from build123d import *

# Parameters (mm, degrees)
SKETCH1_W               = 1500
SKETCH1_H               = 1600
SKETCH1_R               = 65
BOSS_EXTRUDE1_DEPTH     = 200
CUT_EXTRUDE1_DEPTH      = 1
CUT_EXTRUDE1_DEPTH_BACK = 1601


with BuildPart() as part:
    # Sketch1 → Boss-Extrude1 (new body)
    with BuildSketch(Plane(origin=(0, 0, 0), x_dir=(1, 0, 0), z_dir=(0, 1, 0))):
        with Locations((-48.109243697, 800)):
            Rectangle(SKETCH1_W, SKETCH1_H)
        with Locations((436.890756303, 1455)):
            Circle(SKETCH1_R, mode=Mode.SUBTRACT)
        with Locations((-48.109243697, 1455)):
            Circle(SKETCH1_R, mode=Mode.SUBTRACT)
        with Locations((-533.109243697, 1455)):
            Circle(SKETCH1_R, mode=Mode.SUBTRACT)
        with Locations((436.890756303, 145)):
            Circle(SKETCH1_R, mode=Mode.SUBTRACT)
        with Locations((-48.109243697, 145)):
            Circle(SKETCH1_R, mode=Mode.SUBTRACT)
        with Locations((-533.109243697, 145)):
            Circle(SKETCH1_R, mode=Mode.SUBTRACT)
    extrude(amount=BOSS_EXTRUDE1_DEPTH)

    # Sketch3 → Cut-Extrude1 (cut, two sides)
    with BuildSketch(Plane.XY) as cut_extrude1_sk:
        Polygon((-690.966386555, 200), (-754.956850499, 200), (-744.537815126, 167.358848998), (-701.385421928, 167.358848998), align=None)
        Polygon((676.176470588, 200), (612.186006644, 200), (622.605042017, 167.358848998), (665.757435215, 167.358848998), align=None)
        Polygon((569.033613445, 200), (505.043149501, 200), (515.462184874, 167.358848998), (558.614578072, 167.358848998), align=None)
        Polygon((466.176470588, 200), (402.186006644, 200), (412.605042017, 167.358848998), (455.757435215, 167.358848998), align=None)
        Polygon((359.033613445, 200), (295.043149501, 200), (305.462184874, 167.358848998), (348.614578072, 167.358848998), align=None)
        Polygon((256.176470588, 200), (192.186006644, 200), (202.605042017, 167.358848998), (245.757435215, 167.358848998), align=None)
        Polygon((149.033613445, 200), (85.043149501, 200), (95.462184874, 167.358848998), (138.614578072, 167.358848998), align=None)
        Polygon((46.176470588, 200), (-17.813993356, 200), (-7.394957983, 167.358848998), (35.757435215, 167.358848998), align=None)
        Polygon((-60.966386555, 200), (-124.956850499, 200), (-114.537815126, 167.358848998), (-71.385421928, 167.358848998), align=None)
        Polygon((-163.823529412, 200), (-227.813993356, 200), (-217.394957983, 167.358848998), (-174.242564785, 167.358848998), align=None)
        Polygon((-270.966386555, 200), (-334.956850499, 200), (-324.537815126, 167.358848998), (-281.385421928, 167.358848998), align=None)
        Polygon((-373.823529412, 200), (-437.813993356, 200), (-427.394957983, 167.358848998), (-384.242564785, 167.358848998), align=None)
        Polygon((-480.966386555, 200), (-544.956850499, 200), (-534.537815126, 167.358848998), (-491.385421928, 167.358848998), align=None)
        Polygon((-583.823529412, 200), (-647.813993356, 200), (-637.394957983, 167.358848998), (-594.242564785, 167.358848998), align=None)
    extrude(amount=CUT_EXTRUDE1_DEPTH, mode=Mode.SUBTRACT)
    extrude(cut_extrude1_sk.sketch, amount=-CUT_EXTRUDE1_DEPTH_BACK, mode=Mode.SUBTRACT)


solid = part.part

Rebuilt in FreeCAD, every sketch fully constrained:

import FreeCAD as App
import Part
import Sketcher
from FreeCAD import Vector
Q = App.Units.Quantity


def add_polygon(sketch, points):
    """Adds a closed chain of lines whose ends are joined by coincident constraints."""
    first, n = sketch.GeometryCount, len(points)
    for a, b in zip(points, points[1:] + points[:1]):
        sketch.addGeometry(Part.LineSegment(App.Vector(*a, 0), App.Vector(*b, 0)), False)
    for i in range(n):
        sketch.addConstraint(Sketcher.Constraint("Coincident", first + i, 2, first + (i + 1) % n, 1))

doc = App.newDocument("Part")
params = doc.addObject("Spreadsheet::Sheet", "Params")
for row, (alias, value) in enumerate([
    ("sketch1_diameter", "130 mm"),
    ("sketch1_width", "1500 mm"),
    ("sketch1_height", "1600 mm"),
    ("pad1_length", "200 mm"),
], start=1):
    params.set(f"A{row}", alias)
    params.set(f"B{row}", "=" + value)
    params.setAlias(f"B{row}", alias)

body = doc.addObject("PartDesign::Body", "Body")

# Sketch on XZ plane
sketch1 = body.newObject("Sketcher::SketchObject", "Sketch")
sketch1.AttachmentSupport = (doc.getObject("XZ_Plane"), [""])
sketch1.MapMode = "FlatFace"
add_polygon(sketch1, [(-798.109244, -1600), (-798.109244, 0), (701.890756, 0), (701.890756, -1600)])  # lines 0-3
sketch1.addGeometry(Part.Circle(Vector(-533.109244, -145, 0), Vector(0, 0, 1), 65), False)  # 4
sketch1.addGeometry(Part.Circle(Vector(-48.109244, -145, 0), Vector(0, 0, 1), 65), False)  # 5
sketch1.addGeometry(Part.Circle(Vector(436.890756, -145, 0), Vector(0, 0, 1), 65), False)  # 6
sketch1.addGeometry(Part.Circle(Vector(-533.109244, -1455, 0), Vector(0, 0, 1), 65), False)  # 7
sketch1.addGeometry(Part.Circle(Vector(-48.109244, -1455, 0), Vector(0, 0, 1), 65), False)  # 8
sketch1.addGeometry(Part.Circle(Vector(436.890756, -1455, 0), Vector(0, 0, 1), 65), False)  # 9
sketch1.addConstraint([
    Sketcher.Constraint("Vertical", 0),
    Sketcher.Constraint("Horizontal", 1),
    Sketcher.Constraint("Vertical", 2),
    Sketcher.Constraint("Horizontal", 3),
    Sketcher.Constraint("Equal", 4, 5),
    Sketcher.Constraint("Equal", 5, 6),
    Sketcher.Constraint("Equal", 6, 7),
    Sketcher.Constraint("Equal", 7, 8),
    Sketcher.Constraint("Equal", 8, 9),
    Sketcher.Constraint("PointOnObject", 0, 2, -1),
    Sketcher.Constraint("Horizontal", 4, 3, 5, 3),
    Sketcher.Constraint("Horizontal", 5, 3, 6, 3),
    Sketcher.Constraint("Horizontal", 7, 3, 8, 3),
    Sketcher.Constraint("Horizontal", 8, 3, 9, 3),
    Sketcher.Constraint("Vertical", 4, 3, 7, 3),
    Sketcher.Constraint("Vertical", 5, 3, 8, 3),
    Sketcher.Constraint("Vertical", 6, 3, 9, 3),
    Sketcher.Constraint("Diameter", 4, Q("130 mm")),
    Sketcher.Constraint("DistanceX", 1, 1, 1, 2, Q("1500 mm")),
    Sketcher.Constraint("DistanceY", 0, 1, 0, 2, Q("1600 mm")),
    Sketcher.Constraint("DistanceY", 4, 3, -1, 1, Q("145 mm")),
    Sketcher.Constraint("DistanceY", 7, 3, -1, 1, Q("1455 mm")),
    Sketcher.Constraint("DistanceX", 4, 3, 5, 3, Q("485 mm")),
    Sketcher.Constraint("DistanceX", 5, 3, 6, 3, Q("485 mm")),
    Sketcher.Constraint("DistanceX", 0, 2, 4, 3, Q("265 mm")),
    Sketcher.Constraint("DistanceX", 4, 3, -1, 1, Q("533.109244 mm")),
])
sketch1.setExpression("Constraints[21]", "Params.sketch1_diameter")
sketch1.setExpression("Constraints[22]", "Params.sketch1_width")
sketch1.setExpression("Constraints[23]", "Params.sketch1_height")
pad1 = body.newObject("PartDesign::Pad", "Pad")
pad1.Profile = sketch1
pad1.setExpression("Length", "Params.pad1_length")
pad1.Reversed = True

# Sketch on XY plane
sketch2 = body.newObject("Sketcher::SketchObject", "Sketch001")
sketch2.AttachmentSupport = (doc.getObject("XY_Plane"), [""])
sketch2.MapMode = "FlatFace"
add_polygon(sketch2, [(-690.966387, 200), (-754.95685, 200), (-744.537815, 167.358849), (-701.385422, 167.358849)])  # lines 0-3
add_polygon(sketch2, [(676.176471, 200), (612.186007, 200), (622.605042, 167.358849), (665.757435, 167.358849)])  # lines 4-7
add_polygon(sketch2, [(569.033613, 200), (505.04315, 200), (515.462185, 167.358849), (558.614578, 167.358849)])  # lines 8-11
add_polygon(sketch2, [(466.176471, 200), (402.186007, 200), (412.605042, 167.358849), (455.757435, 167.358849)])  # lines 12-15
add_polygon(sketch2, [(359.033613, 200), (295.04315, 200), (305.462185, 167.358849), (348.614578, 167.358849)])  # lines 16-19
add_polygon(sketch2, [(256.176471, 200), (192.186007, 200), (202.605042, 167.358849), (245.757435, 167.358849)])  # lines 20-23
add_polygon(sketch2, [(149.033613, 200), (85.04315, 200), (95.462185, 167.358849), (138.614578, 167.358849)])  # lines 24-27
add_polygon(sketch2, [(46.176471, 200), (-17.813993, 200), (-7.394958, 167.358849), (35.757435, 167.358849)])  # lines 28-31
add_polygon(sketch2, [(-60.966387, 200), (-124.95685, 200), (-114.537815, 167.358849), (-71.385422, 167.358849)])  # lines 32-35
add_polygon(sketch2, [(-163.823529, 200), (-227.813993, 200), (-217.394958, 167.358849), (-174.242565, 167.358849)])  # lines 36-39
add_polygon(sketch2, [(-270.966387, 200), (-334.95685, 200), (-324.537815, 167.358849), (-281.385422, 167.358849)])  # lines 40-43
add_polygon(sketch2, [(-373.823529, 200), (-437.813993, 200), (-427.394958, 167.358849), (-384.242565, 167.358849)])  # lines 44-47
add_polygon(sketch2, [(-480.966387, 200), (-544.95685, 200), (-534.537815, 167.358849), (-491.385422, 167.358849)])  # lines 48-51
add_polygon(sketch2, [(-583.823529, 200), (-647.813993, 200), (-637.394958, 167.358849), (-594.242565, 167.358849)])  # lines 52-55
sketch2.addConstraint([
    Sketcher.Constraint("Horizontal", 0),
    Sketcher.Constraint("Horizontal", 2),
    Sketcher.Constraint("Horizontal", 4),
    Sketcher.Constraint("Horizontal", 6),
    Sketcher.Constraint("Horizontal", 8),
    Sketcher.Constraint("Horizontal", 10),
    Sketcher.Constraint("Horizontal", 12),
    Sketcher.Constraint("Horizontal", 14),
    Sketcher.Constraint("Horizontal", 16),
    Sketcher.Constraint("Horizontal", 18),
    Sketcher.Constraint("Horizontal", 20),
    Sketcher.Constraint("Horizontal", 22),
    Sketcher.Constraint("Horizontal", 24),
    Sketcher.Constraint("Horizontal", 26),
    Sketcher.Constraint("Horizontal", 28),
    Sketcher.Constraint("Horizontal", 30),
    Sketcher.Constraint("Horizontal", 32),
    Sketcher.Constraint("Horizontal", 34),
    Sketcher.Constraint("Horizontal", 36),
    Sketcher.Constraint("Horizontal", 38),
    Sketcher.Constraint("Horizontal", 40),
    Sketcher.Constraint("Horizontal", 42),
    Sketcher.Constraint("Horizontal", 44),
    Sketcher.Constraint("Horizontal", 46),
    Sketcher.Constraint("Horizontal", 48),
    Sketcher.Constraint("Horizontal", 50),
    Sketcher.Constraint("Horizontal", 52),
    Sketcher.Constraint("Horizontal", 54),
    Sketcher.Constraint("Parallel", 1, 5),
    Sketcher.Constraint("Parallel", 3, 7),
    Sketcher.Constraint("Parallel", 5, 9),
    Sketcher.Constraint("Parallel", 7, 11),
    Sketcher.Constraint("Parallel", 9, 13),
    Sketcher.Constraint("Parallel", 11, 15),
    Sketcher.Constraint("Parallel", 13, 17),
    Sketcher.Constraint("Parallel", 15, 19),
    Sketcher.Constraint("Parallel", 17, 21),
    Sketcher.Constraint("Parallel", 19, 23),
    Sketcher.Constraint("Parallel", 21, 25),
    Sketcher.Constraint("Parallel", 23, 27),
    Sketcher.Constraint("Parallel", 25, 29),
    Sketcher.Constraint("Parallel", 27, 31),
    Sketcher.Constraint("Parallel", 29, 33),
    Sketcher.Constraint("Parallel", 31, 35),
    Sketcher.Constraint("Parallel", 33, 37),
    Sketcher.Constraint("Parallel", 35, 39),
    Sketcher.Constraint("Parallel", 37, 41),
    Sketcher.Constraint("Parallel", 39, 43),
    Sketcher.Constraint("Parallel", 41, 45),
    Sketcher.Constraint("Parallel", 43, 47),
    Sketcher.Constraint("Parallel", 45, 49),
    Sketcher.Constraint("Parallel", 47, 51),
    Sketcher.Constraint("Parallel", 49, 53),
    Sketcher.Constraint("Parallel", 51, 55),
    Sketcher.Constraint("Horizontal", 3, 2, 4, 2),
    Sketcher.Constraint("Horizontal", 2, 2, 5, 2),
    Sketcher.Constraint("Horizontal", 7, 2, 8, 2),
    Sketcher.Constraint("Horizontal", 6, 2, 9, 2),
    Sketcher.Constraint("Horizontal", 11, 2, 12, 2),
    Sketcher.Constraint("Horizontal", 10, 2, 13, 2),
    Sketcher.Constraint("Horizontal", 15, 2, 16, 2),
    Sketcher.Constraint("Horizontal", 14, 2, 17, 2),
    Sketcher.Constraint("Horizontal", 19, 2, 20, 2),
    Sketcher.Constraint("Horizontal", 18, 2, 21, 2),
    Sketcher.Constraint("Horizontal", 23, 2, 24, 2),
    Sketcher.Constraint("Horizontal", 22, 2, 25, 2),
    Sketcher.Constraint("Horizontal", 27, 2, 28, 2),
    Sketcher.Constraint("Horizontal", 26, 2, 29, 2),
    Sketcher.Constraint("Horizontal", 31, 2, 32, 2),
    Sketcher.Constraint("Horizontal", 30, 2, 33, 2),
    Sketcher.Constraint("Horizontal", 35, 2, 36, 2),
    Sketcher.Constraint("Horizontal", 34, 2, 37, 2),
    Sketcher.Constraint("Horizontal", 39, 2, 40, 2),
    Sketcher.Constraint("Horizontal", 38, 2, 41, 2),
    Sketcher.Constraint("Horizontal", 43, 2, 44, 2),
    Sketcher.Constraint("Horizontal", 42, 2, 45, 2),
    Sketcher.Constraint("Horizontal", 47, 2, 48, 2),
    Sketcher.Constraint("Horizontal", 46, 2, 49, 2),
    Sketcher.Constraint("Horizontal", 51, 2, 52, 2),
    Sketcher.Constraint("Horizontal", 50, 2, 53, 2),
    Sketcher.Constraint("Equal", 0, 4),
    Sketcher.Constraint("Equal", 4, 8),
    Sketcher.Constraint("Equal", 8, 12),
    Sketcher.Constraint("Equal", 12, 16),
    Sketcher.Constraint("Equal", 16, 20),
    Sketcher.Constraint("Equal", 20, 24),
    Sketcher.Constraint("Equal", 24, 28),
    Sketcher.Constraint("Equal", 28, 32),
    Sketcher.Constraint("Equal", 32, 36),
    Sketcher.Constraint("Equal", 36, 40),
    Sketcher.Constraint("Equal", 40, 44),
    Sketcher.Constraint("Equal", 44, 48),
    Sketcher.Constraint("Equal", 48, 52),
    Sketcher.Constraint("Equal", 1, 3),
    Sketcher.Constraint("DistanceY", -1, 1, 0, 2, Q("200 mm")),
    Sketcher.Constraint("DistanceX", 12, 2, 4, 2, Q("210 mm")),
    Sketcher.Constraint("DistanceX", 16, 2, 8, 2, Q("210 mm")),
    Sketcher.Constraint("DistanceX", 20, 2, 12, 2, Q("210 mm")),
    Sketcher.Constraint("DistanceX", 24, 2, 16, 2, Q("210 mm")),
    Sketcher.Constraint("DistanceX", 28, 2, 20, 2, Q("210 mm")),
    Sketcher.Constraint("DistanceX", 32, 2, 24, 2, Q("210 mm")),
    Sketcher.Constraint("DistanceX", 36, 2, 28, 2, Q("210 mm")),
    Sketcher.Constraint("DistanceX", 40, 2, 32, 2, Q("210 mm")),
    Sketcher.Constraint("DistanceX", 44, 2, 36, 2, Q("210 mm")),
    Sketcher.Constraint("Distance", 1, Q("34.263699 mm")),
    Sketcher.Constraint("DistanceX", 0, 2, 0, 1, Q("63.990464 mm")),
    Sketcher.Constraint("DistanceX", 2, 1, 2, 2, Q("43.152393 mm")),
    Sketcher.Constraint("DistanceX", 0, 2, -1, 1, Q("754.95685 mm")),
    Sketcher.Constraint("DistanceX", -1, 1, 7, 2, Q("676.176471 mm")),
    Sketcher.Constraint("DistanceX", -1, 1, 8, 2, Q("505.04315 mm")),
    Sketcher.Constraint("DistanceX", 48, 2, -1, 1, Q("544.95685 mm")),
    Sketcher.Constraint("DistanceX", 55, 2, -1, 1, Q("583.823529 mm")),
])
pocket1 = body.newObject("PartDesign::Pocket", "Pocket")
pocket1.Profile = sketch2
pocket1.Type = "ThroughAll"
pocket1.Midplane = True

doc.recompute()
